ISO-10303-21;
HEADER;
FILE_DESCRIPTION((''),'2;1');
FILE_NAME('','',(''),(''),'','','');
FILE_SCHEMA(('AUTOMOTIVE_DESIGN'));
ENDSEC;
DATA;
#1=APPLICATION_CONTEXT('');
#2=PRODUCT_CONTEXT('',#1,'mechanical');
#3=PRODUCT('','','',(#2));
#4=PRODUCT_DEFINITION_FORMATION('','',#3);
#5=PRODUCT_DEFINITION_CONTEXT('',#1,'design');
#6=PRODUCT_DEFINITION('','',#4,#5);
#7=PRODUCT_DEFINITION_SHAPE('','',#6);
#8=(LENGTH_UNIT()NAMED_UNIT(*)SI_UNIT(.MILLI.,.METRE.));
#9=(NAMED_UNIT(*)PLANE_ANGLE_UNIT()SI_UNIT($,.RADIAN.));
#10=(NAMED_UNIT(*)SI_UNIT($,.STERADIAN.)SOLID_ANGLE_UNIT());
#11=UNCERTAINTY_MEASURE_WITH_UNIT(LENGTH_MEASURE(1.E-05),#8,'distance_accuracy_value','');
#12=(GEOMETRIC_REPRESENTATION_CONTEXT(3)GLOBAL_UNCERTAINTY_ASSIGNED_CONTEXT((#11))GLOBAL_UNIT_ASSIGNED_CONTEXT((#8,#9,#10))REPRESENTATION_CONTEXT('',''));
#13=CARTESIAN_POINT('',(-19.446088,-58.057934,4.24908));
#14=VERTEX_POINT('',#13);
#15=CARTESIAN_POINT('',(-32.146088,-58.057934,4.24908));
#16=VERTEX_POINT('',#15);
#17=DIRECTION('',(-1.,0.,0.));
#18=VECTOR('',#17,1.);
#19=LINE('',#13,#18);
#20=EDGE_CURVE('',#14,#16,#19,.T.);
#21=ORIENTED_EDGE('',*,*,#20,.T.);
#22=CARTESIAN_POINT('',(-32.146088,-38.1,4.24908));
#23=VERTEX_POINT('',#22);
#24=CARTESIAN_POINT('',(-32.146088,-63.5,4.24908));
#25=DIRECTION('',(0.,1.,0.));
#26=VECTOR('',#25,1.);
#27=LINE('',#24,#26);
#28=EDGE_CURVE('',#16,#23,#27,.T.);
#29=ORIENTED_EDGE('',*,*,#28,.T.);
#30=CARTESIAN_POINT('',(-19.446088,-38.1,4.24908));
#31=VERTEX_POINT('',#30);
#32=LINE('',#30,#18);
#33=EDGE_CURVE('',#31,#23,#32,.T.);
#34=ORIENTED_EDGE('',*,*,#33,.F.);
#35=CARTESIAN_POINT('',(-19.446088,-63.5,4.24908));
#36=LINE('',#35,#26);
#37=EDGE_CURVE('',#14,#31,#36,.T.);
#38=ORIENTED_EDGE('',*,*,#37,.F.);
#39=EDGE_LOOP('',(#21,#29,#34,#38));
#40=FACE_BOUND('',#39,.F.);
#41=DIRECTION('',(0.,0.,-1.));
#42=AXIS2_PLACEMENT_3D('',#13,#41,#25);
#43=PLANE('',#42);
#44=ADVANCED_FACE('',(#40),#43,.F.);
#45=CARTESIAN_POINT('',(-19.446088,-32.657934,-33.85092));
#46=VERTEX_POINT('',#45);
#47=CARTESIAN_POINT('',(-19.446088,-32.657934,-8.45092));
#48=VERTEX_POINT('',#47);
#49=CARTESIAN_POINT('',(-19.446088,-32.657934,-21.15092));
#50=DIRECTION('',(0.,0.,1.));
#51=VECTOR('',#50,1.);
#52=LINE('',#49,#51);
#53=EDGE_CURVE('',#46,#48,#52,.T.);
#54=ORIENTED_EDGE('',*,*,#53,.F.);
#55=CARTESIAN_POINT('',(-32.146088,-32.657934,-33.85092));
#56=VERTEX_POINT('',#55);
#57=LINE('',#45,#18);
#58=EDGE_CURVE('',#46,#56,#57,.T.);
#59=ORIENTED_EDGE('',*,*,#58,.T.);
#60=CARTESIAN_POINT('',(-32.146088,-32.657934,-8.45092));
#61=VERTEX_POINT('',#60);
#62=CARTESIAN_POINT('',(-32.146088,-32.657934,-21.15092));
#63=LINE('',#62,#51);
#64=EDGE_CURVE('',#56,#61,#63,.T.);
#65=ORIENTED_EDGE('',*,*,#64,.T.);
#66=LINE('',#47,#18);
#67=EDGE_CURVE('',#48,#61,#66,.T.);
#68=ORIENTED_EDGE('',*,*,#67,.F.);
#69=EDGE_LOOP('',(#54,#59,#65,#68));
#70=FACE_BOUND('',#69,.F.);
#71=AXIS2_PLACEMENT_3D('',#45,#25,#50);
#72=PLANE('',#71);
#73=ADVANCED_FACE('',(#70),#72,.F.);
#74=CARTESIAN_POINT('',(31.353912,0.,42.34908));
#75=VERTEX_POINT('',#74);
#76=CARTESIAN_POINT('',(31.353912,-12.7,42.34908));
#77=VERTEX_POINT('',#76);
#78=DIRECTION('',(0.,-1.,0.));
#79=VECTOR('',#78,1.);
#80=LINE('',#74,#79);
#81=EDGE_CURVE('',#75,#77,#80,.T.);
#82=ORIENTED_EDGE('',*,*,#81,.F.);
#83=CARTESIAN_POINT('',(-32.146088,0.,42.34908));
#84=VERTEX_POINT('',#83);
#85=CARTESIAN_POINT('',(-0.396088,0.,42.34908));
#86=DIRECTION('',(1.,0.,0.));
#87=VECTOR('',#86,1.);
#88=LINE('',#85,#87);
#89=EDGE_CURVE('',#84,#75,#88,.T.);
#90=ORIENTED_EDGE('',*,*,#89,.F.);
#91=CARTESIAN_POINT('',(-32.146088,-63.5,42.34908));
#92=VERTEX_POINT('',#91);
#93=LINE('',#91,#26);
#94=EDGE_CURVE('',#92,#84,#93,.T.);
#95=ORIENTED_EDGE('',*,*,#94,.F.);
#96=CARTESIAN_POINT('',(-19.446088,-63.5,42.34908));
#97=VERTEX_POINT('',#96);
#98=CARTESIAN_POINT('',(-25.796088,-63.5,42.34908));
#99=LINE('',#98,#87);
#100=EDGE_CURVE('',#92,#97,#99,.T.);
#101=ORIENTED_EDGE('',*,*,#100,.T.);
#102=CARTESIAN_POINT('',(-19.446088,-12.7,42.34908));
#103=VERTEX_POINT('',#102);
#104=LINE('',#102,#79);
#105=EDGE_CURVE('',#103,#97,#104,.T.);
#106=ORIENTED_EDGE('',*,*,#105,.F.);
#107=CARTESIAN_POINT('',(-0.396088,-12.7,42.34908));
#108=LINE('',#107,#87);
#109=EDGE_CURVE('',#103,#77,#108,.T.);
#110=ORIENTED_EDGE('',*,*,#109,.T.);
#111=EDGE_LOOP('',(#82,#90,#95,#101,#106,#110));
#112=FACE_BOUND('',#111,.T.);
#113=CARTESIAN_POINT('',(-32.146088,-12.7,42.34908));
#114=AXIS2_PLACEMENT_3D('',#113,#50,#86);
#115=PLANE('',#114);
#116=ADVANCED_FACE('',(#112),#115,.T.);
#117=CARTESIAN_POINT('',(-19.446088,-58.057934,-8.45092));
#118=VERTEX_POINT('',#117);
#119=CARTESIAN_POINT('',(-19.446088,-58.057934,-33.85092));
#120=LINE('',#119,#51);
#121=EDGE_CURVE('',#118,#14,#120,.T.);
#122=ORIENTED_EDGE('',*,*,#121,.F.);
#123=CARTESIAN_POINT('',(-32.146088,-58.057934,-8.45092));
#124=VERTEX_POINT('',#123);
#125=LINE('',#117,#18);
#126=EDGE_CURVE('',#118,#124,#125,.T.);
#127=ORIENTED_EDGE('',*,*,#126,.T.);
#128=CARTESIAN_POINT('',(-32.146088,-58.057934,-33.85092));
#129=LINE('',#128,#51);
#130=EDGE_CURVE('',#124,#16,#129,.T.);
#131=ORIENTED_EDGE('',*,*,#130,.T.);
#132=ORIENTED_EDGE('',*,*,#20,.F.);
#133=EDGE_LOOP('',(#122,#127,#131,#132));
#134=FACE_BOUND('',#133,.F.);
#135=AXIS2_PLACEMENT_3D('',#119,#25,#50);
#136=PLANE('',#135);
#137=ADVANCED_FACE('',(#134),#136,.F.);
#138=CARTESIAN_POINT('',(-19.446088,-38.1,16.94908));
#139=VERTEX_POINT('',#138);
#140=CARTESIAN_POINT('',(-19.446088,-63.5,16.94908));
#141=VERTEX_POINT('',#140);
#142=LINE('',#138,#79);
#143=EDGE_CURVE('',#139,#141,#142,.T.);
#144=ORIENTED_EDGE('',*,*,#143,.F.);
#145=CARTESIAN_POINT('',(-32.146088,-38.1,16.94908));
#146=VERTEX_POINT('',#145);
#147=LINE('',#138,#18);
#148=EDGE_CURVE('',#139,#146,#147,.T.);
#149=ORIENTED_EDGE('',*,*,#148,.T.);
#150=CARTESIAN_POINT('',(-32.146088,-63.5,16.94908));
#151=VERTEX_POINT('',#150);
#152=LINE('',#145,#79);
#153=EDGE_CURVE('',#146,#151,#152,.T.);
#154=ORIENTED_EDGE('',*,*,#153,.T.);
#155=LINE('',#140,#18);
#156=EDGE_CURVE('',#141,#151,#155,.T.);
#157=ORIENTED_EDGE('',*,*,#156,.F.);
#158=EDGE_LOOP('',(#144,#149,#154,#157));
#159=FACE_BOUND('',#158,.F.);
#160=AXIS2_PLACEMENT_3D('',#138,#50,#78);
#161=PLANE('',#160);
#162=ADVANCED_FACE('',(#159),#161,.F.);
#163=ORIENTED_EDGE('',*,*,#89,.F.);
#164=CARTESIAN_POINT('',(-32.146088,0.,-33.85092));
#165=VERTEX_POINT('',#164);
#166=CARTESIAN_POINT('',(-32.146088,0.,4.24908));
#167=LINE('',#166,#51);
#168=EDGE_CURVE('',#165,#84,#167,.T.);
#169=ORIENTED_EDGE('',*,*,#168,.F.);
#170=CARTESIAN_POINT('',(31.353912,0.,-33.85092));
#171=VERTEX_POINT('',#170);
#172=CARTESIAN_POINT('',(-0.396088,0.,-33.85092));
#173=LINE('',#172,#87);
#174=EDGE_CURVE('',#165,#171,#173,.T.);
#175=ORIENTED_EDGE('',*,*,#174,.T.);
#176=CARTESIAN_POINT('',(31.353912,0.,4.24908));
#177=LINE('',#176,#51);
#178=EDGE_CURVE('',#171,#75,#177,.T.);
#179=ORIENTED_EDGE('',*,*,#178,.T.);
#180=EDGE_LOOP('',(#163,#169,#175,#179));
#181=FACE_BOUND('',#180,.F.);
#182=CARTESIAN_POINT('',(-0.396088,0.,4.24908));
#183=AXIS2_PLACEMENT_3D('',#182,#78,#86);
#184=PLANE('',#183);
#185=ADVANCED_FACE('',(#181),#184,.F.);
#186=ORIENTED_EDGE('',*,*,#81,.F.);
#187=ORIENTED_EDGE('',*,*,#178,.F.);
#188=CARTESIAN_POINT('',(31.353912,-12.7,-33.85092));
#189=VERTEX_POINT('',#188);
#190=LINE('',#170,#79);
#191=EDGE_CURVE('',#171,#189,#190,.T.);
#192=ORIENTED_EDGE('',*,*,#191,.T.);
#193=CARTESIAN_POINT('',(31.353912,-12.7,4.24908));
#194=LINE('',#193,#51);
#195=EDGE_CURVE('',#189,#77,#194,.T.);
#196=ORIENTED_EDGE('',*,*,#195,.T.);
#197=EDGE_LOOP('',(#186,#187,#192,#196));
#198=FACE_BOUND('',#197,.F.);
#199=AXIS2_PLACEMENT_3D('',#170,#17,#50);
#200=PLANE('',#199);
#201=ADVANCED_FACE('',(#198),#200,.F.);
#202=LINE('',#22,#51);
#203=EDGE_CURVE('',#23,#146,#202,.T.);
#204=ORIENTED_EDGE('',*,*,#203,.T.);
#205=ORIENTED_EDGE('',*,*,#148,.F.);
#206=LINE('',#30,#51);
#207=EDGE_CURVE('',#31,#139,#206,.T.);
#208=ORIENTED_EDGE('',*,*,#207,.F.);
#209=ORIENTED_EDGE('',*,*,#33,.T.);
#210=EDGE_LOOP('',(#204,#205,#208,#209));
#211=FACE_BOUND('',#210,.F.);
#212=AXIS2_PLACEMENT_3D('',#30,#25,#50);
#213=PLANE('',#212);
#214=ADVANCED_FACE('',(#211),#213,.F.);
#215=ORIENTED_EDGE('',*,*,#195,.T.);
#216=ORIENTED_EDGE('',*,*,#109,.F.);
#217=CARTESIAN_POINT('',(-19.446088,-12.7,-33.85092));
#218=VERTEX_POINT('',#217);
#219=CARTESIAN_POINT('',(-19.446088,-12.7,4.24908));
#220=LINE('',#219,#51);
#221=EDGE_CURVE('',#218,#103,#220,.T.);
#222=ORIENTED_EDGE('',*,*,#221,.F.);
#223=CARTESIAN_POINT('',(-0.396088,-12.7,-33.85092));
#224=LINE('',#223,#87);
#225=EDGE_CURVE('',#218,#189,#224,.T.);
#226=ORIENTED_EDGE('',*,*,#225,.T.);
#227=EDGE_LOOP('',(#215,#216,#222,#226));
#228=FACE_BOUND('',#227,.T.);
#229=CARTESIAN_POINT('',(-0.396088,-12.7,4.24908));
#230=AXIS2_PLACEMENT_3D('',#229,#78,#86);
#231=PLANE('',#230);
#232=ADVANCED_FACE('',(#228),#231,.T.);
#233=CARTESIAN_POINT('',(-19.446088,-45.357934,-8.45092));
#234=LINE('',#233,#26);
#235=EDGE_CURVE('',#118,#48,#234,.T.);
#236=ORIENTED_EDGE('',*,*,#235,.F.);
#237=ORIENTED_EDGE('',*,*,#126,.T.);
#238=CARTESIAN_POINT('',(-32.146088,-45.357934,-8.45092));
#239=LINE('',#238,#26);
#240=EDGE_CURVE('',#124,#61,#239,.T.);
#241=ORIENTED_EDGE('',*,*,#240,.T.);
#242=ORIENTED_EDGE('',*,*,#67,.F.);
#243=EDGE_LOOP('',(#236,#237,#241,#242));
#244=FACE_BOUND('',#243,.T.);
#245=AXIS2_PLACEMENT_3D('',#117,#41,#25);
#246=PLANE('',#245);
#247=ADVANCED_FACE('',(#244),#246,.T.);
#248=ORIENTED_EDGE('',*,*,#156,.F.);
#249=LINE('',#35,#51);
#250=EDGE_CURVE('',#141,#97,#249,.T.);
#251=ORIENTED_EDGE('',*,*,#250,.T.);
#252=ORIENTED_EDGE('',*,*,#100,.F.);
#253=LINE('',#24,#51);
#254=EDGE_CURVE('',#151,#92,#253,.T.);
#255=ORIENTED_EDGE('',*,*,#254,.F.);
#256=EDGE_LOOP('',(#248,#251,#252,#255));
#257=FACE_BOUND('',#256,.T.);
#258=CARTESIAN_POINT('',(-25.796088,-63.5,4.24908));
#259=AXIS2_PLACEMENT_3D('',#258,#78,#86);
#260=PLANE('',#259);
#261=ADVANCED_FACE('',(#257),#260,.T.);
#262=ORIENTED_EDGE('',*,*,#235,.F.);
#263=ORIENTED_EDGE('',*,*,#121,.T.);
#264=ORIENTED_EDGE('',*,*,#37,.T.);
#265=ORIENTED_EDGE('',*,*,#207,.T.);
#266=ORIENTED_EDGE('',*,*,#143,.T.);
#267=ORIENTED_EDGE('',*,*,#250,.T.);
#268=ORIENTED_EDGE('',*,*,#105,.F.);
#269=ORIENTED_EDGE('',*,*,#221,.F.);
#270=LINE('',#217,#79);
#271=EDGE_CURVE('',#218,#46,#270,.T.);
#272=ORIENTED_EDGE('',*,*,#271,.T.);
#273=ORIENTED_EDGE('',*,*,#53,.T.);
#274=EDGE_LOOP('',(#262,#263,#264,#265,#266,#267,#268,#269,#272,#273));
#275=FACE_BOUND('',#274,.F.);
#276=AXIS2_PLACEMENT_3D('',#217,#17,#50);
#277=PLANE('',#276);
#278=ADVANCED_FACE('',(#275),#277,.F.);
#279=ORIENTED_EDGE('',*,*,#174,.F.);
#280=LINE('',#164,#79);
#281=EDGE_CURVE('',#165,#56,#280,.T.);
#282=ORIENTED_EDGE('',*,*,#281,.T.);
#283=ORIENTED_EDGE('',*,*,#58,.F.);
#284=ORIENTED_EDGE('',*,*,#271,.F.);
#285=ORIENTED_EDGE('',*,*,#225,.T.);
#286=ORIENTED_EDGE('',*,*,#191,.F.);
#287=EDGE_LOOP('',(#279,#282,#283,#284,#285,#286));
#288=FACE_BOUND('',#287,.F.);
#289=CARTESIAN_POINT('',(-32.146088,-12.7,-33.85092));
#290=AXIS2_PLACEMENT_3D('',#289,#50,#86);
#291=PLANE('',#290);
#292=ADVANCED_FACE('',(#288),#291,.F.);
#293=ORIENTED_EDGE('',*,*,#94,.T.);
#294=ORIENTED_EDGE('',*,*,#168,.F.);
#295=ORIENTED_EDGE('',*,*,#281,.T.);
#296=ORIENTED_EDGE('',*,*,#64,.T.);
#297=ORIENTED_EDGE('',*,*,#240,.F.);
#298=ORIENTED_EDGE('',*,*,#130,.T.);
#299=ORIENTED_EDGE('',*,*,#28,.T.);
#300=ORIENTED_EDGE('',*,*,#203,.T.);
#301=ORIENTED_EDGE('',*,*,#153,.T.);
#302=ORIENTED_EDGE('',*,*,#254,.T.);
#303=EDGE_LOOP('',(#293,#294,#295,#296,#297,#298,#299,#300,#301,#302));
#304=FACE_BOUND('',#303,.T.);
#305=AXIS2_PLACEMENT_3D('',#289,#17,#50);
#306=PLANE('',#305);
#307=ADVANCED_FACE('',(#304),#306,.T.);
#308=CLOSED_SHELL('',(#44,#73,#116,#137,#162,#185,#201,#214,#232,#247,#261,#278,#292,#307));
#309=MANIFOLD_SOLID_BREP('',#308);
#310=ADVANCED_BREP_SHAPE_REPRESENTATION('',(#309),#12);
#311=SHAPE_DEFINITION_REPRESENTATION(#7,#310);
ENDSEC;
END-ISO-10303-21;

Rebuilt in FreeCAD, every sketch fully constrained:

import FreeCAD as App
import Part
import Sketcher

V = App.Vector
Q = App.Units.Quantity


def add_polygon(sketch, points):
    """Adds a closed chain of lines whose ends are joined by coincident constraints."""
    first, n = sketch.GeometryCount, len(points)
    for a, b in zip(points, points[1:] + points[:1]):
        sketch.addGeometry(Part.LineSegment(App.Vector(*a, 0), App.Vector(*b, 0)), False)
    for i in range(n):
        sketch.addConstraint(Sketcher.Constraint("Coincident", first + i, 2, first + (i + 1) % n, 1))

doc = App.newDocument("Part")
body = doc.addObject("PartDesign::Body", "Body")

# Sketch on XZ plane
sketch1 = body.newObject("Sketcher::SketchObject", "Sketch")
sketch1.AttachmentSupport = (doc.getObject("XZ_Plane"), [""])
sketch1.MapMode = "FlatFace"
add_polygon(sketch1, [(-32, 42), (-32, -34), (31, -34), (31, 42)])  # lines 0-3
sketch1.addConstraint(Sketcher.Constraint("Vertical", 0))
sketch1.addConstraint(Sketcher.Constraint("Horizontal", 1))
sketch1.addConstraint(Sketcher.Constraint("Vertical", 2))
sketch1.addConstraint(Sketcher.Constraint("Horizontal", 3))
sketch1.addConstraint(Sketcher.Constraint("DistanceY", 0, 2, 0, 1, Q("3 in")))
sketch1.addConstraint(Sketcher.Constraint("DistanceX", 1, 1, 1, 2, Q("2.5 in")))
sketch1.addConstraint(Sketcher.Constraint("DistanceY", 0, 2, -1, 1, 33.85092))
sketch1.addConstraint(Sketcher.Constraint("DistanceX", 0, 2, -1, 1, 32.146088))
pad1 = body.newObject("PartDesign::Pad", "Pad")
pad1.Profile = sketch1
pad1.Length = Q("0.5 in")

# Sketch on XZ plane
sketch2 = body.newObject("Sketcher::SketchObject", "Sketch001")
sketch2.AttachmentSupport = (doc.getObject("XZ_Plane"), [""])
sketch2.MapMode = "FlatFace"
sketch2.AttachmentOffset = App.Placement(V(0, 0, 0.5 * 25.4), App.Rotation())
add_polygon(sketch2, [(-32, 42), (-32, -34), (-19, -34), (-19, 42)])  # lines 0-3
sketch2.addConstraint(Sketcher.Constraint("Vertical", 0))
sketch2.addConstraint(Sketcher.Constraint("Horizontal", 1))
sketch2.addConstraint(Sketcher.Constraint("Vertical", 2))
sketch2.addConstraint(Sketcher.Constraint("Horizontal", 3))
sketch2.addConstraint(Sketcher.Constraint("DistanceY", 0, 2, 0, 1, Q("3 in")))
sketch2.addConstraint(Sketcher.Constraint("DistanceX", 1, 1, 1, 2, Q("0.5 in")))
sketch2.addConstraint(Sketcher.Constraint("DistanceY", 0, 2, -1, 1, 33.85092))
sketch2.addConstraint(Sketcher.Constraint("DistanceX", 0, 2, -1, 1, 32.146088))
pad2 = body.newObject("PartDesign::Pad", "Pad001")
pad2.Profile = sketch2
pad2.Length = Q("2 in")

# Sketch on YZ plane
sketch3 = body.newObject("Sketcher::SketchObject", "Sketch002")
sketch3.AttachmentSupport = (doc.getObject("YZ_Plane"), [""])
sketch3.MapMode = "FlatFace"
sketch3.AttachmentOffset = App.Placement(V(0, 0, -19.446088), App.Rotation())
add_polygon(sketch3, [(-38, 17), (-64, 17), (-64, -34), (-58, -34), (-58, 4), (-38, 4)])  # lines 0-5
sketch3.addConstraint(Sketcher.Constraint("Horizontal", 0))
sketch3.addConstraint(Sketcher.Constraint("Vertical", 1))
sketch3.addConstraint(Sketcher.Constraint("Horizontal", 2))
sketch3.addConstraint(Sketcher.Constraint("Vertical", 3))
sketch3.addConstraint(Sketcher.Constraint("Horizontal", 4))
sketch3.addConstraint(Sketcher.Constraint("Vertical", 5))
sketch3.addConstraint(Sketcher.Constraint("DistanceX", 0, 2, 0, 1, Q("1 in")))
sketch3.addConstraint(Sketcher.Constraint("DistanceY", 1, 2, 1, 1, Q("2 in")))
sketch3.addConstraint(Sketcher.Constraint("DistanceY", 3, 1, 3, 2, Q("1.5 in")))
sketch3.addConstraint(Sketcher.Constraint("DistanceX", 0, 2, -1, 1, Q("2.5 in")))
sketch3.addConstraint(Sketcher.Constraint("DistanceX", 2, 1, 2, 2, 5.442066))
sketch3.addConstraint(Sketcher.Constraint("DistanceY", -1, 1, 0, 2, 16.94908))
pocket1 = body.newObject("PartDesign::Pocket", "Pocket")
pocket1.Profile = sketch3
pocket1.Length = Q("0.5 in")

# Sketch on YZ plane
sketch4 = body.newObject("Sketcher::SketchObject", "Sketch003")
sketch4.AttachmentSupport = (doc.getObject("YZ_Plane"), [""])
sketch4.MapMode = "FlatFace"
sketch4.AttachmentOffset = App.Placement(V(0, 0, -19.446088), App.Rotation())
add_polygon(sketch4, [(-58, -8), (-58, -34), (-33, -34), (-33, -8)])  # lines 0-3
sketch4.addConstraint(Sketcher.Constraint("Vertical", 0))
sketch4.addConstraint(Sketcher.Constraint("Horizontal", 1))
sketch4.addConstraint(Sketcher.Constraint("Vertical", 2))
sketch4.addConstraint(Sketcher.Constraint("Horizontal", 3))
sketch4.addConstraint(Sketcher.Constraint("Equal", 3, 0))
sketch4.addConstraint(Sketcher.Constraint("DistanceX", 1, 1, 1, 2, Q("1 in")))
sketch4.addConstraint(Sketcher.Constraint("DistanceY", 0, 2, -1, 1, 33.85092))
sketch4.addConstraint(Sketcher.Constraint("DistanceX", 0, 2, -1, 1, 58.057934))
pocket2 = body.newObject("PartDesign::Pocket", "Pocket001")
pocket2.Profile = sketch4
pocket2.Length = Q("0.5 in")

doc.recompute()
